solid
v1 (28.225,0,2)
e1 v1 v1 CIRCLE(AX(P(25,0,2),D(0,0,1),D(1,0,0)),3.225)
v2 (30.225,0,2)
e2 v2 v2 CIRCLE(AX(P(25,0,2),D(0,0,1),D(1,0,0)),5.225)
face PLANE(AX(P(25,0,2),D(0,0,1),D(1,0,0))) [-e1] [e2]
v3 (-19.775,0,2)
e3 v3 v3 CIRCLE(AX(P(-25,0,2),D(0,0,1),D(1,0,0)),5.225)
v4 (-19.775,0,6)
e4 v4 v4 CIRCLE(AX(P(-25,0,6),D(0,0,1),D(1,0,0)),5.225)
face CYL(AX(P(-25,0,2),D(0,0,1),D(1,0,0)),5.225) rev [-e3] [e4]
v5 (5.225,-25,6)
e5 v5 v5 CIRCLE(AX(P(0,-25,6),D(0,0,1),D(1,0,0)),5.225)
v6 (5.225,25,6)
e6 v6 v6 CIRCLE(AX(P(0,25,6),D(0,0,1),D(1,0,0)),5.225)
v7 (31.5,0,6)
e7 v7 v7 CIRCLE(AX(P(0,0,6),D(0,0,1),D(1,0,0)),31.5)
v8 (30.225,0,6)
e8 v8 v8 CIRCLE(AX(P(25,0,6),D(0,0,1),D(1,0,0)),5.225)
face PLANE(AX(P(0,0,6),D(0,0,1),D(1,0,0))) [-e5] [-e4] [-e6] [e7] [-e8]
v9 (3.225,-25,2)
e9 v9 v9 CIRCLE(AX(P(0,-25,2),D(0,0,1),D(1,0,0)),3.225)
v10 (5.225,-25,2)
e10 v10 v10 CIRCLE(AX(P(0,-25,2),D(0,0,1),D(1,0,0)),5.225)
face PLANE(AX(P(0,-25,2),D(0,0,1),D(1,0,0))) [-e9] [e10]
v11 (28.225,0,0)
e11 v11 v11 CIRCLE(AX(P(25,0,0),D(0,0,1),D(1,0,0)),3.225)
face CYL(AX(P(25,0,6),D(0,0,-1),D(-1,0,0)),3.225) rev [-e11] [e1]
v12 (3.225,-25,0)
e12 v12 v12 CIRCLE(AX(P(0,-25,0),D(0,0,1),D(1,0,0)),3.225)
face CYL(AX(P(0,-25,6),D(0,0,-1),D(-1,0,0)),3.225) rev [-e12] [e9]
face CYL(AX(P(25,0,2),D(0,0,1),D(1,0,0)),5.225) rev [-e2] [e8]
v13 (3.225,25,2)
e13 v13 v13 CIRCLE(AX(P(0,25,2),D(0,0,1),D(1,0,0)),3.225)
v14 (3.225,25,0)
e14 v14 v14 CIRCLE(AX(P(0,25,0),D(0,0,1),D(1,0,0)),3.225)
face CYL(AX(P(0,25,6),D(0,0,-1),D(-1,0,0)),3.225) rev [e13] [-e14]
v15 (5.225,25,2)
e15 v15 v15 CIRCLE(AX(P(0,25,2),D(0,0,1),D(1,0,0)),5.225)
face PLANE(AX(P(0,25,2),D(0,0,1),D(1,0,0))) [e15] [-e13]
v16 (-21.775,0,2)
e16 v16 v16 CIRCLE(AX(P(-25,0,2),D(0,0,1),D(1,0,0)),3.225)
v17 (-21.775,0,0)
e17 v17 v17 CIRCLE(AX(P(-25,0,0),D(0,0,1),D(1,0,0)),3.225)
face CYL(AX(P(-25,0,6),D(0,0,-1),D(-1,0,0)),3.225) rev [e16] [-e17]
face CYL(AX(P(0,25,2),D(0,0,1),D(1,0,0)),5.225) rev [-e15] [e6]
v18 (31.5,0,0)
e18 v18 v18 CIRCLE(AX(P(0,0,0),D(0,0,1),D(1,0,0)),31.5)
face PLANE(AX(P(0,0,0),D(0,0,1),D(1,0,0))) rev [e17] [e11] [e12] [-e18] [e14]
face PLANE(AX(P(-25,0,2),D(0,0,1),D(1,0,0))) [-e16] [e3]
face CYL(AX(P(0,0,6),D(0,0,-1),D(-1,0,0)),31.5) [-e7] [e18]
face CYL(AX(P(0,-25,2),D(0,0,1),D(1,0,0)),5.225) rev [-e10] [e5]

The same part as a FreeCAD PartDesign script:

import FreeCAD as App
import Part
import Sketcher

V = App.Vector
Q = App.Units.Quantity

doc = App.newDocument("Part")
body = doc.addObject("PartDesign::Body", "Body")

# Sketch on XY plane
sketch1 = body.newObject("Sketcher::SketchObject", "Sketch")
sketch1.AttachmentSupport = (doc.getObject("XY_Plane"), [""])
sketch1.MapMode = "FlatFace"
sketch1.addGeometry([
    Part.Circle(V(0, 0, 0), V(0, 0, 1), 31.5),  # 0
    Part.Circle(V(0, -25, 0), V(0, 0, 1), 3.2),  # 1
    Part.Circle(V(-25, 0, 0), V(0, 0, 1), 3.2),  # 2
    Part.Circle(V(25, 0, 0), V(0, 0, 1), 3.2),  # 3
    Part.Circle(V(0, 25, 0), V(0, 0, 1), 3.2),  # 4
], False)
sketch1.addConstraint([
    Sketcher.Constraint("Coincident", 0, 3, -1, 1),
    Sketcher.Constraint("Equal", 1, 2),
    Sketcher.Constraint("Equal", 2, 3),
    Sketcher.Constraint("Equal", 3, 4),
    Sketcher.Constraint("Symmetric", 2, 3, 3, 3, -1, 1),
    Sketcher.Constraint("Symmetric", 1, 3, 4, 3, -1, 1),
    Sketcher.Constraint("PointOnObject", 1, 3, -2),
    Sketcher.Constraint("PointOnObject", 2, 3, -1),
    Sketcher.Constraint("Diameter", 0, Q("63 mm")),
    Sketcher.Constraint("Diameter", 1, Q("6.45 mm")),
    Sketcher.Constraint("DistanceY", 1, 3, -1, 1, Q("25 mm")),
    Sketcher.Constraint("DistanceX", 2, 3, -1, 1, Q("25 mm")),
])
pad1 = body.newObject("PartDesign::Pad", "Pad")
pad1.Profile = sketch1
pad1.Length = 6

# Sketch on XY plane
sketch2 = body.newObject("Sketcher::SketchObject", "Sketch001")
sketch2.AttachmentSupport = (doc.getObject("XY_Plane"), [""])
sketch2.MapMode = "FlatFace"
sketch2.AttachmentOffset = App.Placement(V(0, 0, 6), App.Rotation())
sketch2.addGeometry([
    Part.Circle(V(0, -25, 0), V(0, 0, 1), 5),
    Part.Circle(V(-25, 0, 0), V(0, 0, 1), 5),
    Part.Circle(V(0, 25, 0), V(0, 0, 1), 5),
    Part.Circle(V(25, 0, 0), V(0, 0, 1), 5),
], False)
sketch2.addConstraint([
    Sketcher.Constraint("Equal", 0, 1),
    Sketcher.Constraint("Equal", 1, 2),
    Sketcher.Constraint("Equal", 2, 3),
    Sketcher.Constraint("Symmetric", 0, 3, 2, 3, -1, 1),
    Sketcher.Constraint("Symmetric", 1, 3, 3, 3, -1, 1),
    Sketcher.Constraint("PointOnObject", 0, 3, -2),
    Sketcher.Constraint("PointOnObject", 1, 3, -1),
    Sketcher.Constraint("Diameter", 0, Q("10.45 mm")),
    Sketcher.Constraint("DistanceY", 0, 3, -1, 1, Q("25 mm")),
    Sketcher.Constraint("DistanceX", 1, 3, -1, 1, Q("25 mm")),
])
pocket1 = body.newObject("PartDesign::Pocket", "Pocket")
pocket1.Profile = sketch2
pocket1.Length = 4

doc.recompute()
